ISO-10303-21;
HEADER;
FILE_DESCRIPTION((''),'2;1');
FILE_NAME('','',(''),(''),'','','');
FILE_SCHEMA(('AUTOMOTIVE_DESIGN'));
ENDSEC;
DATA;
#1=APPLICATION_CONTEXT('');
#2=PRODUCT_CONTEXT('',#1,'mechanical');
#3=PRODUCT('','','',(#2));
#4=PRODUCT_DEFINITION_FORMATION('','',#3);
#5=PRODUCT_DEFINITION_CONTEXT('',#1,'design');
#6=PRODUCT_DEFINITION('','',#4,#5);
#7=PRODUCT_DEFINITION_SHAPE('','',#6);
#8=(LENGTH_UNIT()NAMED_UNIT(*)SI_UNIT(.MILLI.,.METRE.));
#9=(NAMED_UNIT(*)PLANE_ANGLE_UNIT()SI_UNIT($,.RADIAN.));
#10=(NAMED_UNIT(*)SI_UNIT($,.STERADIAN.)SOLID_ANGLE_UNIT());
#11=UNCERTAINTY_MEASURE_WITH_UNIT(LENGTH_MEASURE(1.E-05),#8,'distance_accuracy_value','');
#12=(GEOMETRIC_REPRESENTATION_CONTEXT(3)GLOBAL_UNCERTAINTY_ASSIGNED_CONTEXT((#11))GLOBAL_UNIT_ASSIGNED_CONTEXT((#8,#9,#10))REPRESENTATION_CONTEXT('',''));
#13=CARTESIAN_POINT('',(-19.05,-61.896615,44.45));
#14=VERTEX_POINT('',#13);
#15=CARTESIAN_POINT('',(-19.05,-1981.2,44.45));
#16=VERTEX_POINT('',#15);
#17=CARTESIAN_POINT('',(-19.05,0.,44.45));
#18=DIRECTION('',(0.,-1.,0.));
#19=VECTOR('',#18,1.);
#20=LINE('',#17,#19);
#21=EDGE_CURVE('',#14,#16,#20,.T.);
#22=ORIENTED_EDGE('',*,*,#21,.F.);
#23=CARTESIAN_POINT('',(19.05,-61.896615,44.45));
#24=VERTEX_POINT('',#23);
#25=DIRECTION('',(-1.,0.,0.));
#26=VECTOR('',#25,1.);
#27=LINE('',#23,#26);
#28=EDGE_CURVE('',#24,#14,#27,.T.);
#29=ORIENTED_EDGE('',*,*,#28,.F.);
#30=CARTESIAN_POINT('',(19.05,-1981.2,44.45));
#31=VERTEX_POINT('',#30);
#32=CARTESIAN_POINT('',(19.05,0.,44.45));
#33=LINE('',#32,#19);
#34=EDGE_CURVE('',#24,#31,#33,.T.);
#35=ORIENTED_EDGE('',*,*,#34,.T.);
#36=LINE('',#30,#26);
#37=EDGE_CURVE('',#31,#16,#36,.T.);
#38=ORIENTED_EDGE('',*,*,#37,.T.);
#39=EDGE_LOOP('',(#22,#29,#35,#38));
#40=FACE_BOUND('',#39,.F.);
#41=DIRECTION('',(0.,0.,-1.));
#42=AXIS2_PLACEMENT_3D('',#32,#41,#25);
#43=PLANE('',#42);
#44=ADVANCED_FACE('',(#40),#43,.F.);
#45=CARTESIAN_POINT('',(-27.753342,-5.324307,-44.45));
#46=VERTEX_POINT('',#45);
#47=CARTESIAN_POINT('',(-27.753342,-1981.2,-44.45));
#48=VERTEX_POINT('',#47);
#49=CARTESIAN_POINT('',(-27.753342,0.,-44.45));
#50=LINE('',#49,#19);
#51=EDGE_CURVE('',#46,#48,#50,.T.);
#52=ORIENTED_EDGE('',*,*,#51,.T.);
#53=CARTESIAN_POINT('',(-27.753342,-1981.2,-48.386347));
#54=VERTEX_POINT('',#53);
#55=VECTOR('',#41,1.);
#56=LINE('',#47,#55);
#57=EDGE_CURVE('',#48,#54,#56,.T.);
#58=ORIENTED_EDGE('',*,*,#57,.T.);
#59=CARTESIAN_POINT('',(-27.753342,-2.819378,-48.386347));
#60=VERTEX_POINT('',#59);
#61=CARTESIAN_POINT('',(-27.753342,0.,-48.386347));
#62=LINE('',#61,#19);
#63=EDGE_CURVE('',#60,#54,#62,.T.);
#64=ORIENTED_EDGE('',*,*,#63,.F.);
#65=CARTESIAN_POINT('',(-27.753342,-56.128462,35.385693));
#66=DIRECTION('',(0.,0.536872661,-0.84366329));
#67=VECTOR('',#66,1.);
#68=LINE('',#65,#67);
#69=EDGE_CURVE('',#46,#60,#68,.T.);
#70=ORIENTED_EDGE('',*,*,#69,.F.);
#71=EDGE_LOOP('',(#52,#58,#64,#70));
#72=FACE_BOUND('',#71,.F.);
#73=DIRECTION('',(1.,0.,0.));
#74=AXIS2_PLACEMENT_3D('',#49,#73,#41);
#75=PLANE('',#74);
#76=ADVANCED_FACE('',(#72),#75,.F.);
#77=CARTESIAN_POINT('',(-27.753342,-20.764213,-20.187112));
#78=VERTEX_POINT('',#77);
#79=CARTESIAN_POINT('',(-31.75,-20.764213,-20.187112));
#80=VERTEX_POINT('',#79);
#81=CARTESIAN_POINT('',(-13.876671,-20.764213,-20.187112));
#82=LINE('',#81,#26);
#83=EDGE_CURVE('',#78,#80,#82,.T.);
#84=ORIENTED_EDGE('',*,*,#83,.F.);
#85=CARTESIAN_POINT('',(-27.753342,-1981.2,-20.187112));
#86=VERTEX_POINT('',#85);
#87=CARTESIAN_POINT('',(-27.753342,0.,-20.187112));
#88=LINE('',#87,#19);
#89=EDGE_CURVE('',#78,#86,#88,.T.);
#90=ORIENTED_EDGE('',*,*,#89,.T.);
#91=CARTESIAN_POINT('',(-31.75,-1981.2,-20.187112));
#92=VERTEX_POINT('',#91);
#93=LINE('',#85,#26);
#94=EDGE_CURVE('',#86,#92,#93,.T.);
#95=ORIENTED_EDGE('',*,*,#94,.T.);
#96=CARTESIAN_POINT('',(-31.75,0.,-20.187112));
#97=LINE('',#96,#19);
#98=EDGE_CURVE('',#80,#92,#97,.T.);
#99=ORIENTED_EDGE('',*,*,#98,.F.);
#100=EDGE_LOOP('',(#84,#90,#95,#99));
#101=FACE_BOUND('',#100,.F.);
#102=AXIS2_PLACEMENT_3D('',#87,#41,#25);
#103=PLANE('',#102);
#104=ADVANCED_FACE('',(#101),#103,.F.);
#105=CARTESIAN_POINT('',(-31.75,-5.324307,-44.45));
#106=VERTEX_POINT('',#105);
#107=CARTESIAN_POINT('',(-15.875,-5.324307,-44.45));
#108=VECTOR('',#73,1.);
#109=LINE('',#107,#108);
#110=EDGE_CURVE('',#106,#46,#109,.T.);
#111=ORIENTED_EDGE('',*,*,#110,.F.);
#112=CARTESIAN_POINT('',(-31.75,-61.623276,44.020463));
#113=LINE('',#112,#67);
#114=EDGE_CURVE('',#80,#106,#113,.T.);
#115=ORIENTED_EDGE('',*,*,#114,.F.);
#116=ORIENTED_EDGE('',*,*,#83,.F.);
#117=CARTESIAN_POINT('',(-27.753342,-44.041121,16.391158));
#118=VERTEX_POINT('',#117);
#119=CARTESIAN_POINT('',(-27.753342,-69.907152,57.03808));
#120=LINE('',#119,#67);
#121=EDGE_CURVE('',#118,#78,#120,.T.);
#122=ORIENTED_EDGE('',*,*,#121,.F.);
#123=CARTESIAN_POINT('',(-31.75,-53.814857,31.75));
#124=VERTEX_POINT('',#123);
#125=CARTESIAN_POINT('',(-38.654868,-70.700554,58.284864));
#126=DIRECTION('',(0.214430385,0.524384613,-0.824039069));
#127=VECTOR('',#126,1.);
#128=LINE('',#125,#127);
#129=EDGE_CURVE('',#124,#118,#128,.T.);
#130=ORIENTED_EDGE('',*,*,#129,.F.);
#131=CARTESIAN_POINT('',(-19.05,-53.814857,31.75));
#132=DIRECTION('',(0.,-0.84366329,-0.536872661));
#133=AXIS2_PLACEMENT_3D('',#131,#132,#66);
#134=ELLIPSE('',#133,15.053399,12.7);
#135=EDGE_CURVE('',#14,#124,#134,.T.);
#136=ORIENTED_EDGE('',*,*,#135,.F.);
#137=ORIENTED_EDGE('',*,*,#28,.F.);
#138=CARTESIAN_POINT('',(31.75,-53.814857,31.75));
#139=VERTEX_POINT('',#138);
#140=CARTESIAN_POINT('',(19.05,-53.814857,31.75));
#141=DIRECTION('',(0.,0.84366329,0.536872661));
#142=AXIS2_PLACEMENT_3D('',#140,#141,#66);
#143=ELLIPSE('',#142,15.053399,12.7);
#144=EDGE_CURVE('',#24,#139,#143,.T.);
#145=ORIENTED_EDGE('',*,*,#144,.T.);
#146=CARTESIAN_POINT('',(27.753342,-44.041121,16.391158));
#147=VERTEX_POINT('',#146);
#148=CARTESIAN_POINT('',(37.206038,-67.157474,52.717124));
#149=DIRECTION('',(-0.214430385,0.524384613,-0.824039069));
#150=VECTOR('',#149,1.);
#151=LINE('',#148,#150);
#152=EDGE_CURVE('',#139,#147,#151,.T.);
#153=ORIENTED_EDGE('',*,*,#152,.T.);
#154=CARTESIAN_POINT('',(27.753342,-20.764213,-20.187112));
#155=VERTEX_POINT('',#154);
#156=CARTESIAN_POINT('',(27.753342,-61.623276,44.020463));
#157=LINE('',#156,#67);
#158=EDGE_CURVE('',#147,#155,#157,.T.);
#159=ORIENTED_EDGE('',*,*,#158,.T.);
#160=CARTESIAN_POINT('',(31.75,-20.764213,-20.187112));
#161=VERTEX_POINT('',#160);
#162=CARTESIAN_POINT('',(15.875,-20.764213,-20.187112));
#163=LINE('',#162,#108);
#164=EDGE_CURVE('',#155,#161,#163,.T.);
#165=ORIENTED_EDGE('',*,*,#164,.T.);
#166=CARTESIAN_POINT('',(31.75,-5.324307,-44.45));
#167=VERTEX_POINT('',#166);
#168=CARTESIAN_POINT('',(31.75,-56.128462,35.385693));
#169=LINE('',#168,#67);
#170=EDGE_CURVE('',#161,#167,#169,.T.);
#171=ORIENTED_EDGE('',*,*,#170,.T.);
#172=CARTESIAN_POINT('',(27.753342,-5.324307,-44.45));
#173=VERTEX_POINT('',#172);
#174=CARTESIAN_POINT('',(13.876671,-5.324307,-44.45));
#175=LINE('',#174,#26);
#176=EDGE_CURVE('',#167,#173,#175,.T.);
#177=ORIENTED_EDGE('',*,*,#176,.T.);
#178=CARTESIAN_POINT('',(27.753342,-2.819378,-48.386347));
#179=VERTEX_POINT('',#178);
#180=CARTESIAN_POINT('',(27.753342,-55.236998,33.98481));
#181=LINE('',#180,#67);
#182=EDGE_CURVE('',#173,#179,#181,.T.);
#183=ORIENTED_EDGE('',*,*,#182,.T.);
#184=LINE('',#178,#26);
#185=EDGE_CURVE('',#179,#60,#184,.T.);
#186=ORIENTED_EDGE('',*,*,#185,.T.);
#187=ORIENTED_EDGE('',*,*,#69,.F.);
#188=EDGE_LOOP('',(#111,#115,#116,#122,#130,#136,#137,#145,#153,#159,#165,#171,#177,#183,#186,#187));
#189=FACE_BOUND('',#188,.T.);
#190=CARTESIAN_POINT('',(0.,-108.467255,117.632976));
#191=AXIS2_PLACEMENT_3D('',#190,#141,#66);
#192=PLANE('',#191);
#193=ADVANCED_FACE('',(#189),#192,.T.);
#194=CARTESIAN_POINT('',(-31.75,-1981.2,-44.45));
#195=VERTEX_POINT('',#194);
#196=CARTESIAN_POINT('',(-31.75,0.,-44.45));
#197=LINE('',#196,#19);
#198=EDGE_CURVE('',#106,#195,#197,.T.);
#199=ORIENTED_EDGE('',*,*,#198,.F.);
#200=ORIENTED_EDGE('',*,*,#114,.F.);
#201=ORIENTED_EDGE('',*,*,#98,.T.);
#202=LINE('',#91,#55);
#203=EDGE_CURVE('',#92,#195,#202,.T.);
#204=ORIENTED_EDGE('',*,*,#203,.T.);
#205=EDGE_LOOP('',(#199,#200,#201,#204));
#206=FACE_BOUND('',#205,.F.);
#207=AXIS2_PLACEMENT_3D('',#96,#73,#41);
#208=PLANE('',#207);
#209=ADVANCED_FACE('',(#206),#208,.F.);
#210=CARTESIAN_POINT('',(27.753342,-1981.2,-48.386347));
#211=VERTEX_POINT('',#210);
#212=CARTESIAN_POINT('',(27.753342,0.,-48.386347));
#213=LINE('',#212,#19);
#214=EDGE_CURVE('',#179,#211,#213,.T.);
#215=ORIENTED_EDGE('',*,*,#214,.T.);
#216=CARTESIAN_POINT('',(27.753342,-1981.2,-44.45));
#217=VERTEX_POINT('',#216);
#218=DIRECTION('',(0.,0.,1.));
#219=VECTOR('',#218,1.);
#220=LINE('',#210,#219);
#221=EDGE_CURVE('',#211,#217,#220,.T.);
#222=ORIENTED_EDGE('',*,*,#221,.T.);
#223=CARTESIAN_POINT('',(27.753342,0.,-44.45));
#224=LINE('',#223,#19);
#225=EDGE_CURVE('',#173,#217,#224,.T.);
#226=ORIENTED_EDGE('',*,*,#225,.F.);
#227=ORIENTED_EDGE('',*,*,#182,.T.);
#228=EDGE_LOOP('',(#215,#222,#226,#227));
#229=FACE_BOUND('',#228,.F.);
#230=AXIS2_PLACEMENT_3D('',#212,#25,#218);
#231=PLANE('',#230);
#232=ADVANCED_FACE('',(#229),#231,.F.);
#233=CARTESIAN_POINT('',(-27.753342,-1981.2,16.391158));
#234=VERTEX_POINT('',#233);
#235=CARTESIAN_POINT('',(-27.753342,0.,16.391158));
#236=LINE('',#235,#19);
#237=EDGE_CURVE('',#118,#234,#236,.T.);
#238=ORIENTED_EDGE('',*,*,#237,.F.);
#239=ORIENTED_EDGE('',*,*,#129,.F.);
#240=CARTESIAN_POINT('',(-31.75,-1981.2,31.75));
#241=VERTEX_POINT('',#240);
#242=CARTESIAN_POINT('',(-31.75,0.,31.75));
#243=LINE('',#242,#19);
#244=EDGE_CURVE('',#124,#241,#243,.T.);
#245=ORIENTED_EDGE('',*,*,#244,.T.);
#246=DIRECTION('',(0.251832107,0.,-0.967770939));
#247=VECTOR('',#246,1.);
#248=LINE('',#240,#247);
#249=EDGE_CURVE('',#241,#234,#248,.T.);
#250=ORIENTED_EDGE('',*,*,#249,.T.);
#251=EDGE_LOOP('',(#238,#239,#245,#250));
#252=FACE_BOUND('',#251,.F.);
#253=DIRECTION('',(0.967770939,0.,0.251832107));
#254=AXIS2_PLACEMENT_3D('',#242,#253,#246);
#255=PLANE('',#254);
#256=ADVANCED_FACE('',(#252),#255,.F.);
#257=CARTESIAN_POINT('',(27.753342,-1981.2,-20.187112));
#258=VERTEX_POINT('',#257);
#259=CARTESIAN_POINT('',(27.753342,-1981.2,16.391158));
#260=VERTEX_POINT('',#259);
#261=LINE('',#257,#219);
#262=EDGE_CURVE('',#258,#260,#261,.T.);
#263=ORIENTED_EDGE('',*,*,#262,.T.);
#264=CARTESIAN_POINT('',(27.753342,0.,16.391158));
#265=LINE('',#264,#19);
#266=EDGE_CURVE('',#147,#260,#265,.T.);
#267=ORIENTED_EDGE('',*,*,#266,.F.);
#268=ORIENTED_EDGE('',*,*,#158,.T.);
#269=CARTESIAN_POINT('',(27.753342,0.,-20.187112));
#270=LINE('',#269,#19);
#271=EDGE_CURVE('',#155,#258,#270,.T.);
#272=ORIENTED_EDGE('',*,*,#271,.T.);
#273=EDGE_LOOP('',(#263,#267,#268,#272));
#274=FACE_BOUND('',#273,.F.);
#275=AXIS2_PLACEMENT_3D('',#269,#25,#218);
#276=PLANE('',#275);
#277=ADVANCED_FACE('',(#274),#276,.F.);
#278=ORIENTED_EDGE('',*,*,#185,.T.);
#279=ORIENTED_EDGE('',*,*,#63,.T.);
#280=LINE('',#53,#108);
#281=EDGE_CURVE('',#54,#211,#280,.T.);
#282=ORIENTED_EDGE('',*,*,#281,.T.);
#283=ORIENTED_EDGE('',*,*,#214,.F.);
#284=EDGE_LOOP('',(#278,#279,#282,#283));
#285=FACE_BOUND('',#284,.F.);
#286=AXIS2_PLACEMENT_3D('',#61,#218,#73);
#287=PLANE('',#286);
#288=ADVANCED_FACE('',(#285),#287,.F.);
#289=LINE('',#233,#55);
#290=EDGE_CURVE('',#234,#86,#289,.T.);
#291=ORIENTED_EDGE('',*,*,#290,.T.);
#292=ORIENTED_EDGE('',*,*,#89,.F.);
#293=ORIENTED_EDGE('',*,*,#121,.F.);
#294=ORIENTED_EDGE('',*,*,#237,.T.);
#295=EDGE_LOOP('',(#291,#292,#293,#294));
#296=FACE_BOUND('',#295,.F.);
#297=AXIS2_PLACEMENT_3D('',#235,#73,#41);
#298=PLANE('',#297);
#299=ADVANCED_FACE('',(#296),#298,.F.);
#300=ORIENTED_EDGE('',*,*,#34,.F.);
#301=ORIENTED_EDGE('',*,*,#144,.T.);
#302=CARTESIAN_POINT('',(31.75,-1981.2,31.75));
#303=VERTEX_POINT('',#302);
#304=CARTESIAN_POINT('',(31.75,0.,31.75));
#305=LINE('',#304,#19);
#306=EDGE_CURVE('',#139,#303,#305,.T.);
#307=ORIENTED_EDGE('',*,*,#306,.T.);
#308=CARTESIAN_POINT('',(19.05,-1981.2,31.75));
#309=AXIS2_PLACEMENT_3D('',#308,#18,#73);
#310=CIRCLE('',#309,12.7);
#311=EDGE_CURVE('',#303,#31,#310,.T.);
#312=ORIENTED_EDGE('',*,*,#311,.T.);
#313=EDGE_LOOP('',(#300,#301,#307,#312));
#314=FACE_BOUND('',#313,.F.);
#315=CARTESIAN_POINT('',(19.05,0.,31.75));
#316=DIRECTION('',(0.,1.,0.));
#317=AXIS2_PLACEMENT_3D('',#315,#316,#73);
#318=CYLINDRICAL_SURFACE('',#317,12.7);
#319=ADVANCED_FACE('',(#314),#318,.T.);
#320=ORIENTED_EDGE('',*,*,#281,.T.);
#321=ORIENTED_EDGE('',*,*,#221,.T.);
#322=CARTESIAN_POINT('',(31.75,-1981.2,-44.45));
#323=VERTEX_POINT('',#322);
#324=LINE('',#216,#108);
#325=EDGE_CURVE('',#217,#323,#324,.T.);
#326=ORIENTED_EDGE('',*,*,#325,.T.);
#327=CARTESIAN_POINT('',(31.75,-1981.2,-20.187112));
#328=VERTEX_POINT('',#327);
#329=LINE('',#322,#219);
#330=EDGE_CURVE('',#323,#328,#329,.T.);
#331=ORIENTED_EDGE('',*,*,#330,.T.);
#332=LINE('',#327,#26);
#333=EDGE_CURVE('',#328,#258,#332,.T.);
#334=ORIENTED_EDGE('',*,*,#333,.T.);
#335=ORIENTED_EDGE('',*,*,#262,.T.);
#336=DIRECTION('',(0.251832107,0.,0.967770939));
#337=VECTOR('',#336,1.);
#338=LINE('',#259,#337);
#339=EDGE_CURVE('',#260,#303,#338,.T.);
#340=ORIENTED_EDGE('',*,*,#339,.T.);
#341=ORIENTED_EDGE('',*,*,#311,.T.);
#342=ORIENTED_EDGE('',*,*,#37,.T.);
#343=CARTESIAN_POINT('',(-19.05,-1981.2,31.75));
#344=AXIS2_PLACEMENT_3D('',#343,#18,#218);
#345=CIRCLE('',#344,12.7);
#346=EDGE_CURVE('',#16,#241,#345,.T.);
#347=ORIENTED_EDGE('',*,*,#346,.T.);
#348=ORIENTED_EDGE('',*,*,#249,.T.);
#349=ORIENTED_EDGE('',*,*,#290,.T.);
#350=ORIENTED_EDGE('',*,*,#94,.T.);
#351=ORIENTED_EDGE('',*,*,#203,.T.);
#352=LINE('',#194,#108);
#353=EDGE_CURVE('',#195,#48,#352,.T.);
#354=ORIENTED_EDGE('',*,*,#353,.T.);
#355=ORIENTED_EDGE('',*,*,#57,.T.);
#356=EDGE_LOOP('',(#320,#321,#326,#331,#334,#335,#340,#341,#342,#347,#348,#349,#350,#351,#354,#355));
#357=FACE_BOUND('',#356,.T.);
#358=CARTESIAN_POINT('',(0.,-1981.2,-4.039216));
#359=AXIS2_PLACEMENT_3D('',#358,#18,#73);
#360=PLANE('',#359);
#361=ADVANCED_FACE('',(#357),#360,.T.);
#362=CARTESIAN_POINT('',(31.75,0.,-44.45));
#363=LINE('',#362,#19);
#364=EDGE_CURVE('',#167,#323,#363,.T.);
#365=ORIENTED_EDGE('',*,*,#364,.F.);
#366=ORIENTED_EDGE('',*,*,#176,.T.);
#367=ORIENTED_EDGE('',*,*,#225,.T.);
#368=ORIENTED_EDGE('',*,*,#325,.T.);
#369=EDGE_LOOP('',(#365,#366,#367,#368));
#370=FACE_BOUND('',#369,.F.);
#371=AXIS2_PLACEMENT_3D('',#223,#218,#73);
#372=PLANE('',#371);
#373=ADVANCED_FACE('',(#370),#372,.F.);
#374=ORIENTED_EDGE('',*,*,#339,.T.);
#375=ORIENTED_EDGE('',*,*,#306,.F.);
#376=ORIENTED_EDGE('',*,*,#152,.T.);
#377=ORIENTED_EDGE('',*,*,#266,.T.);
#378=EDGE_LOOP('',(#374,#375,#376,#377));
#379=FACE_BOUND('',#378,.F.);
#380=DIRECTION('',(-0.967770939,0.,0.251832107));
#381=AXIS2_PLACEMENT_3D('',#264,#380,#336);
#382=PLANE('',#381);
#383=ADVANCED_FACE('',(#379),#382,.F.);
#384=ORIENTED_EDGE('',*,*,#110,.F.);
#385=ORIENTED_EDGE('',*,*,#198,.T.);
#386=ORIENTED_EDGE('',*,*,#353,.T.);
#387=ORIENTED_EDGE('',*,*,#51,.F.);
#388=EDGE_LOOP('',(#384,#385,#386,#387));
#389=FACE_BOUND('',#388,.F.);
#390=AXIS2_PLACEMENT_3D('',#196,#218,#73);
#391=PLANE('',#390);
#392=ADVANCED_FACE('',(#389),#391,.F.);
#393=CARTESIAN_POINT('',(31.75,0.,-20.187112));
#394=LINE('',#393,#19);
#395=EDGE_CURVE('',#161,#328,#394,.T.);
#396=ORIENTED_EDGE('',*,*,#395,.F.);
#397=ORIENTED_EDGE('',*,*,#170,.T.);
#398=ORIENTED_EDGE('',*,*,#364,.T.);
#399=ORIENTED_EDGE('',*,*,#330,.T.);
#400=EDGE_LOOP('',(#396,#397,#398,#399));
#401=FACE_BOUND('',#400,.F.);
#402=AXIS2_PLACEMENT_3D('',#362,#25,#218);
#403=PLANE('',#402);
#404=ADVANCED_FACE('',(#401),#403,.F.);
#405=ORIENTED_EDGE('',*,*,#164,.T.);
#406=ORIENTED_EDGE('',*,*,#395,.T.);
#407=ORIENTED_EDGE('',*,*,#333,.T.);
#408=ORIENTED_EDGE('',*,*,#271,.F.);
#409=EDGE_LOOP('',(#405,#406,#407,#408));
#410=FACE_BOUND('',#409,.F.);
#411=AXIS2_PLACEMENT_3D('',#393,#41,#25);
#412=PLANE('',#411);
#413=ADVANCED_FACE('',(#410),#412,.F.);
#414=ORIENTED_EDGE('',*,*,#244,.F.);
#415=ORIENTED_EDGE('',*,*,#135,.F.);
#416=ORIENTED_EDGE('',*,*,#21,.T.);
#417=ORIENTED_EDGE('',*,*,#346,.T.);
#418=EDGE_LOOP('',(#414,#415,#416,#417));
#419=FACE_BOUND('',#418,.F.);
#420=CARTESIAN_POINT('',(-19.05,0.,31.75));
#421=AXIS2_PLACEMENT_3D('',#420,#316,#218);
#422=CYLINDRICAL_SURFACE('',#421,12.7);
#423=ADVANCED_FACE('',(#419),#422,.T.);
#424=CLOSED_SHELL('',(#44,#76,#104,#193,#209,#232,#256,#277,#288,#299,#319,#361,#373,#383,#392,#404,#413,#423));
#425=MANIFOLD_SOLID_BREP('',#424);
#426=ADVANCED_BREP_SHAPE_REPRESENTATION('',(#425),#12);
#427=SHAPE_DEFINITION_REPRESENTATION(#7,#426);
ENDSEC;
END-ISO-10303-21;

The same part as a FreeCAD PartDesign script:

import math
import FreeCAD as App
import Part
import Sketcher
Q = App.Units.Quantity


def add_polygon(sketch, points):
    """Adds a closed chain of lines whose ends are joined by coincident constraints."""
    first, n = sketch.GeometryCount, len(points)
    for a, b in zip(points, points[1:] + points[:1]):
        sketch.addGeometry(Part.LineSegment(App.Vector(*a, 0), App.Vector(*b, 0)), False)
    for i in range(n):
        sketch.addConstraint(Sketcher.Constraint("Coincident", first + i, 2, first + (i + 1) % n, 1))

doc = App.newDocument("Part")
body = doc.addObject("PartDesign::Body", "Body")

# Sketch on XZ plane
sketch1 = doc.addObject("Sketcher::SketchObject", "Sketch")
body.addObject(sketch1)
sketch1.AttachmentSupport = (doc.XZ_Plane, [""])
sketch1.MapMode = "FlatFace"
sketch1.addGeometry([
    Part.LineSegment(App.Vector(19.1, 44.5, 0), App.Vector(-19.1, 44.5, 0)),  # 0
    Part.ArcOfCircle(Part.Circle(App.Vector(-19.1, 31.8, 0), App.Vector(0, 0, 1), 12.7), math.radians(90), math.radians(180)),  # 1
    Part.LineSegment(App.Vector(-31.8, 31.8, 0), App.Vector(-27.8, 16.4, 0)),  # 2
    Part.LineSegment(App.Vector(-27.8, 16.4, 0), App.Vector(-27.8, -20.2, 0)),  # 3
    Part.LineSegment(App.Vector(-27.8, -20.2, 0), App.Vector(-31.8, -20.2, 0)),  # 4
    Part.LineSegment(App.Vector(-31.8, -20.2, 0), App.Vector(-31.8, -44.5, 0)),  # 5
    Part.LineSegment(App.Vector(-31.8, -44.5, 0), App.Vector(-27.8, -44.5, 0)),  # 6
    Part.LineSegment(App.Vector(-27.8, -44.5, 0), App.Vector(-27.8, -48.4, 0)),  # 7
    Part.LineSegment(App.Vector(-27.8, -48.4, 0), App.Vector(27.8, -48.4, 0)),  # 8
    Part.LineSegment(App.Vector(27.8, -48.4, 0), App.Vector(27.8, -44.5, 0)),  # 9
    Part.LineSegment(App.Vector(27.8, -44.5, 0), App.Vector(31.8, -44.5, 0)),  # 10
    Part.LineSegment(App.Vector(31.8, -44.5, 0), App.Vector(31.8, -20.2, 0)),  # 11
    Part.LineSegment(App.Vector(31.8, -20.2, 0), App.Vector(27.8, -20.2, 0)),  # 12
    Part.LineSegment(App.Vector(27.8, -20.2, 0), App.Vector(27.8, 16.4, 0)),  # 13
    Part.LineSegment(App.Vector(27.8, 16.4, 0), App.Vector(31.8, 31.8, 0)),  # 14
    Part.ArcOfCircle(Part.Circle(App.Vector(19.1, 31.8, 0), App.Vector(0, 0, 1), 12.7), math.radians(0), math.radians(90)),  # 15
], False)
sketch1.addConstraint([
    Sketcher.Constraint("Tangent", 0, 2, 1, 1),
    Sketcher.Constraint("Coincident", 1, 2, 2, 1),
    Sketcher.Constraint("Coincident", 2, 2, 3, 1),
    Sketcher.Constraint("Coincident", 3, 2, 4, 1),
    Sketcher.Constraint("Coincident", 4, 2, 5, 1),
    Sketcher.Constraint("Coincident", 5, 2, 6, 1),
    Sketcher.Constraint("Coincident", 6, 2, 7, 1),
    Sketcher.Constraint("Coincident", 7, 2, 8, 1),
    Sketcher.Constraint("Coincident", 8, 2, 9, 1),
    Sketcher.Constraint("Coincident", 9, 2, 10, 1),
    Sketcher.Constraint("Coincident", 10, 2, 11, 1),
    Sketcher.Constraint("Coincident", 11, 2, 12, 1),
    Sketcher.Constraint("Coincident", 12, 2, 13, 1),
    Sketcher.Constraint("Coincident", 13, 2, 14, 1),
    Sketcher.Constraint("Coincident", 14, 2, 15, 1),
    Sketcher.Constraint("Tangent", 15, 2, 0, 1),
    Sketcher.Constraint("Horizontal", 0),
    Sketcher.Constraint("Vertical", 3),
    Sketcher.Constraint("Horizontal", 4),
    Sketcher.Constraint("Vertical", 5),
    Sketcher.Constraint("Horizontal", 6),
    Sketcher.Constraint("Vertical", 7),
    Sketcher.Constraint("Horizontal", 8),
    Sketcher.Constraint("Vertical", 9),
    Sketcher.Constraint("Horizontal", 10),
    Sketcher.Constraint("Vertical", 11),
    Sketcher.Constraint("Horizontal", 12),
    Sketcher.Constraint("Vertical", 13),
    Sketcher.Constraint("Equal", 1, 15),
    Sketcher.Constraint("Symmetric", 6, 2, 9, 2, -2),
    Sketcher.Constraint("Symmetric", 4, 2, 11, 2, -2),
    Sketcher.Constraint("Symmetric", 2, 2, 13, 2, -2),
    Sketcher.Constraint("Symmetric", 1, 2, 14, 2, -2),
    Sketcher.Constraint("Horizontal", 15, 3, 1, 2),
    Sketcher.Constraint("Vertical", 1, 2, 4, 2),
    Sketcher.Constraint("Vertical", 3, 2, 6, 2),
    Sketcher.Constraint("Radius", 1, Q("0.5 in")),
    Sketcher.Constraint("DistanceX", 0, 2, 0, 1, Q("1.5 in")),
    Sketcher.Constraint("DistanceY", 5, 2, 1, 2, Q("3 in")),
    Sketcher.Constraint("DistanceY", -1, 1, 1, 3, Q("1.25 in")),
    Sketcher.Constraint("DistanceX", 4, 2, 4, 1, Q("3.996658 mm")),
    Sketcher.Constraint("DistanceY", 3, 2, 3, 1, Q("36.57827 mm")),
    Sketcher.Constraint("DistanceY", 5, 2, 5, 1, Q("24.262888 mm")),
    Sketcher.Constraint("DistanceY", 7, 2, 7, 1, Q("3.936347 mm")),
])
pad1 = doc.addObject("PartDesign::Pad", "Pad")
body.addObject(pad1)
pad1.Profile = sketch1
pad1.Length = Q("78 in")

# Sketch on YZ plane
sketch2 = doc.addObject("Sketcher::SketchObject", "Sketch001")
body.addObject(sketch2)
sketch2.AttachmentSupport = (doc.YZ_Plane, [""])
sketch2.MapMode = "FlatFace"
add_polygon(sketch2, [(-108, 118), (0, -53), (0, 118)])  # lines 0-2
sketch2.addConstraint([
    Sketcher.Constraint("Vertical", 1),
    Sketcher.Constraint("Horizontal", 2),
    Sketcher.Constraint("PointOnObject", 0, 2, -2),
    Sketcher.Constraint("DistanceX", 2, 2, 2, 1, Q("108.467255 mm")),
    Sketcher.Constraint("DistanceY", 1, 1, 1, 2, Q("170.449806 mm")),
    Sketcher.Constraint("DistanceY", 0, 2, -1, 1, Q("52.816831 mm")),
])
pocket1 = doc.addObject("PartDesign::Pocket", "Pocket")
body.addObject(pocket1)
pocket1.Profile = sketch2
pocket1.Type = "ThroughAll"
pocket1.Midplane = True

doc.recompute()
